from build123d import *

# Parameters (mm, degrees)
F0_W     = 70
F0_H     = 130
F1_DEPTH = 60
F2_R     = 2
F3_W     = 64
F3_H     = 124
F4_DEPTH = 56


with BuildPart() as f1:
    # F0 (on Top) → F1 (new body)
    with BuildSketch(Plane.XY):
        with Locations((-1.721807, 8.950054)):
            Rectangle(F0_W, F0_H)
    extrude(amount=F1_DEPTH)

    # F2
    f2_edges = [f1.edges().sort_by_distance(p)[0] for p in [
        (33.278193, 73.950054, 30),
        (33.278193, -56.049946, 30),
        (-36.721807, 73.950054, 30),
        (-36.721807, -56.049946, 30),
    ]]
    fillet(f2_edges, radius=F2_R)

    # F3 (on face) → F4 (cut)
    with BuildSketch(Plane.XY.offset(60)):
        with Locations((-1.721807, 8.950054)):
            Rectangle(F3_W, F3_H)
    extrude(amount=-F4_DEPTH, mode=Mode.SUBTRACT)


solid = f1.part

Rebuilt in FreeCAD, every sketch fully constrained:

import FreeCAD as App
import Part
import Sketcher
from FreeCAD import Vector
Q = App.Units.Quantity


def edges_at(feature, points):
    """Names of the edges that pass closest to the given points."""
    edges = feature.Shape.Edges
    near = lambda p: min(range(len(edges)), key=lambda i: edges[i].distToShape(Part.Vertex(*p))[0])
    return sorted({f"Edge{near(p) + 1}" for p in points})


def add_polygon(sketch, points):
    """Adds a closed chain of lines whose ends are joined by coincident constraints."""
    first, n = sketch.GeometryCount, len(points)
    for a, b in zip(points, points[1:] + points[:1]):
        sketch.addGeometry(Part.LineSegment(App.Vector(*a, 0), App.Vector(*b, 0)), False)
    for i in range(n):
        sketch.addConstraint(Sketcher.Constraint("Coincident", first + i, 2, first + (i + 1) % n, 1))

doc = App.newDocument("Part")
params = doc.addObject("Spreadsheet::Sheet", "Params")
for row, (alias, value) in enumerate([
    ("sketch1_width", "70 mm"),
    ("sketch1_height", "130 mm"),
    ("pad1_length", "60 mm"),
    ("fillet_radius", "2 mm"),
    ("sketch2_width", "64 mm"),
    ("sketch2_height", "124 mm"),
    ("pocket1_length", "56 mm"),
], start=1):
    params.set(f"A{row}", alias)
    params.set(f"B{row}", "=" + value)
    params.setAlias(f"B{row}", alias)

body = doc.addObject("PartDesign::Body", "Body")

sketch1 = body.newObject("Sketcher::SketchObject", "Sketch")
sketch1.AttachmentSupport = (doc.getObject("XY_Plane"), [""])
sketch1.MapMode = "FlatFace"
add_polygon(sketch1, [(-37, 74), (-37, -56), (33, -56), (33, 74)])
sketch1.addConstraint(Sketcher.Constraint("Vertical", 0))
sketch1.addConstraint(Sketcher.Constraint("Horizontal", 1))
sketch1.addConstraint(Sketcher.Constraint("Vertical", 2))
sketch1.addConstraint(Sketcher.Constraint("Horizontal", 3))
sketch1.addConstraint(Sketcher.Constraint("DistanceX", 1, 1, 1, 2, Q("70 mm")))
sketch1.addConstraint(Sketcher.Constraint("DistanceY", 0, 2, 0, 1, Q("130 mm")))
sketch1.addConstraint(Sketcher.Constraint("DistanceX", 0, 2, -1, 1, Q("36.721807 mm")))
sketch1.addConstraint(Sketcher.Constraint("DistanceY", 0, 2, -1, 1, Q("56.049946 mm")))
sketch1.setExpression("Constraints[8]", "Params.sketch1_width")
sketch1.setExpression("Constraints[9]", "Params.sketch1_height")
pad1 = body.newObject("PartDesign::Pad", "Pad")
pad1.Profile = sketch1
pad1.setExpression("Length", "Params.pad1_length")
doc.recompute()

fillet = body.newObject("PartDesign::Fillet", "Fillet")
fillet.Base = (pad1, edges_at(pad1, [
    (33.278, 73.95, 30),
    (33.278, -56.05, 30),
    (-36.722, 73.95, 30),
    (-36.722, -56.05, 30),
]))
fillet.setExpression("Radius", "Params.fillet_radius")

sketch2 = body.newObject("Sketcher::SketchObject", "Sketch001")
sketch2.AttachmentSupport = (doc.getObject("XY_Plane"), [""])
sketch2.MapMode = "FlatFace"
sketch2.AttachmentOffset = App.Placement(Vector(0, 0, 60), App.Rotation())
add_polygon(sketch2, [(-34, 71), (-34, -53), (30, -53), (30, 71)])
sketch2.addConstraint(Sketcher.Constraint("Vertical", 0))
sketch2.addConstraint(Sketcher.Constraint("Horizontal", 1))
sketch2.addConstraint(Sketcher.Constraint("Vertical", 2))
sketch2.addConstraint(Sketcher.Constraint("Horizontal", 3))
sketch2.addConstraint(Sketcher.Constraint("DistanceX", 1, 1, 1, 2, Q("64 mm")))
sketch2.addConstraint(Sketcher.Constraint("DistanceY", 0, 2, 0, 1, Q("124 mm")))
sketch2.addConstraint(Sketcher.Constraint("DistanceX", 0, 2, -1, 1, Q("33.721807 mm")))
sketch2.addConstraint(Sketcher.Constraint("DistanceY", 0, 2, -1, 1, Q("53.049946 mm")))
sketch2.setExpression("Constraints[8]", "Params.sketch2_width")
sketch2.setExpression("Constraints[9]", "Params.sketch2_height")
pocket1 = body.newObject("PartDesign::Pocket", "Pocket")
pocket1.Profile = sketch2
pocket1.setExpression("Length", "Params.pocket1_length")

doc.recompute()
